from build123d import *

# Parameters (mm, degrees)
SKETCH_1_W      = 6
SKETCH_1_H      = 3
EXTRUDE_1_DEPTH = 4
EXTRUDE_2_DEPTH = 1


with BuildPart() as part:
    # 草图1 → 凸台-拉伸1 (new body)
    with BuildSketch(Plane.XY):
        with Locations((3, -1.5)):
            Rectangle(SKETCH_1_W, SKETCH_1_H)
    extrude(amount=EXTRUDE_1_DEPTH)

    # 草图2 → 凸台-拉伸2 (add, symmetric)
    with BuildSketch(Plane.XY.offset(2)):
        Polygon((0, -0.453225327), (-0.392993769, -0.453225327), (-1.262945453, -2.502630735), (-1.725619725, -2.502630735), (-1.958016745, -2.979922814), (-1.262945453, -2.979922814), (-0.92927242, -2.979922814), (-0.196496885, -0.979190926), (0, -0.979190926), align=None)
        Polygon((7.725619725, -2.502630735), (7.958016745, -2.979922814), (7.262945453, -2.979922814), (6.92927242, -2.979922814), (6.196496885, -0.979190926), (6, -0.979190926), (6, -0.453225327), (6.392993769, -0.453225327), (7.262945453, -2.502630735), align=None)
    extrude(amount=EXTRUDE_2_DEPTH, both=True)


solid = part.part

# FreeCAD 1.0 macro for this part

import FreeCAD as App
import Part
import Sketcher
from FreeCAD import Vector
Q = App.Units.Quantity

doc = App.newDocument("Part")
body = doc.addObject("PartDesign::Body", "Body")

sketch1 = doc.addObject("Sketcher::SketchObject", "Sketch")
body.addObject(sketch1)
sketch1.AttachmentSupport = (doc.XY_Plane, [""])
sketch1.MapMode = "FlatFace"
sketch1.addGeometry([
    Part.LineSegment(Vector(0, 0, 0), Vector(0, -3, 0)),
    Part.LineSegment(Vector(0, -3, 0), Vector(6, -3, 0)),
    Part.LineSegment(Vector(6, -3, 0), Vector(6, 0, 0)),
    Part.LineSegment(Vector(6, 0, 0), Vector(0, 0, 0)),
], False)
sketch1.addConstraint([
    Sketcher.Constraint("Coincident", 0, 2, 1, 1),
    Sketcher.Constraint("Coincident", 1, 2, 2, 1),
    Sketcher.Constraint("Coincident", 2, 2, 3, 1),
    Sketcher.Constraint("Coincident", 3, 2, 0, 1),
    Sketcher.Constraint("Vertical", 0),
    Sketcher.Constraint("Horizontal", 1),
    Sketcher.Constraint("Vertical", 2),
    Sketcher.Constraint("Horizontal", 3),
    Sketcher.Constraint("Coincident", 3, 2, -1, 1),
    Sketcher.Constraint("DistanceX", 1, 1, 1, 2, Q("6 mm")),
    Sketcher.Constraint("DistanceY", 0, 2, 0, 1, Q("3 mm")),
])
pad1 = doc.addObject("PartDesign::Pad", "Pad")
body.addObject(pad1)
pad1.Profile = sketch1
pad1.Length = 4

sketch2 = doc.addObject("Sketcher::SketchObject", "Sketch001")
body.addObject(sketch2)
sketch2.AttachmentSupport = (doc.XY_Plane, [""])
sketch2.MapMode = "FlatFace"
sketch2.AttachmentOffset = App.Placement(Vector(0, 0, 2), App.Rotation())
sketch2.addGeometry([
    Part.LineSegment(Vector(0, -0.45, 0), Vector(-0.39, -0.45, 0)),
    Part.LineSegment(Vector(-0.39, -0.45, 0), Vector(-1.26, -2.5, 0)),
    Part.LineSegment(Vector(-1.26, -2.5, 0), Vector(-1.73, -2.5, 0)),
    Part.LineSegment(Vector(-1.73, -2.5, 0), Vector(-1.96, -2.98, 0)),
    Part.LineSegment(Vector(-1.96, -2.98, 0), Vector(-0.93, -2.98, 0)),
    Part.LineSegment(Vector(-0.93, -2.98, 0), Vector(-0.2, -0.98, 0)),
    Part.LineSegment(Vector(-0.2, -0.98, 0), Vector(0, -0.98, 0)),
    Part.LineSegment(Vector(0, -0.98, 0), Vector(0, -0.45, 0)),
    Part.LineSegment(Vector(7.96, -2.98, 0), Vector(7.73, -2.5, 0)),
    Part.LineSegment(Vector(7.73, -2.5, 0), Vector(7.26, -2.5, 0)),
    Part.LineSegment(Vector(7.26, -2.5, 0), Vector(6.39, -0.45, 0)),
    Part.LineSegment(Vector(6.39, -0.45, 0), Vector(6, -0.45, 0)),
    Part.LineSegment(Vector(6, -0.45, 0), Vector(6, -0.98, 0)),
    Part.LineSegment(Vector(6, -0.98, 0), Vector(6.2, -0.98, 0)),
    Part.LineSegment(Vector(6.2, -0.98, 0), Vector(6.93, -2.98, 0)),
    Part.LineSegment(Vector(6.93, -2.98, 0), Vector(7.96, -2.98, 0)),
], False)
sketch2.addConstraint([
    Sketcher.Constraint("Coincident", 0, 2, 1, 1),
    Sketcher.Constraint("Coincident", 1, 2, 2, 1),
    Sketcher.Constraint("Coincident", 2, 2, 3, 1),
    Sketcher.Constraint("Coincident", 3, 2, 4, 1),
    Sketcher.Constraint("Coincident", 4, 2, 5, 1),
    Sketcher.Constraint("Coincident", 5, 2, 6, 1),
    Sketcher.Constraint("Coincident", 6, 2, 7, 1),
    Sketcher.Constraint("Coincident", 7, 2, 0, 1),
    Sketcher.Constraint("Coincident", 8, 2, 9, 1),
    Sketcher.Constraint("Coincident", 9, 2, 10, 1),
    Sketcher.Constraint("Coincident", 10, 2, 11, 1),
    Sketcher.Constraint("Coincident", 11, 2, 12, 1),
    Sketcher.Constraint("Coincident", 12, 2, 13, 1),
    Sketcher.Constraint("Coincident", 13, 2, 14, 1),
    Sketcher.Constraint("Coincident", 14, 2, 15, 1),
    Sketcher.Constraint("Coincident", 15, 2, 8, 1),
    Sketcher.Constraint("Horizontal", 0),
    Sketcher.Constraint("Horizontal", 2),
    Sketcher.Constraint("Horizontal", 4),
    Sketcher.Constraint("Horizontal", 6),
    Sketcher.Constraint("Vertical", 7),
    Sketcher.Constraint("Horizontal", 9),
    Sketcher.Constraint("Horizontal", 11),
    Sketcher.Constraint("Vertical", 12),
    Sketcher.Constraint("Horizontal", 13),
    Sketcher.Constraint("Horizontal", 15),
    Sketcher.Constraint("PointOnObject", 6, 2, -2),
    Sketcher.Constraint("Horizontal", 2, 2, 8, 2),
    Sketcher.Constraint("Horizontal", 7, 2, 10, 2),
    Sketcher.Constraint("Horizontal", 6, 2, 12, 2),
    Sketcher.Constraint("Horizontal", 4, 2, 14, 2),
    Sketcher.Constraint("Equal", 2, 9),
    Sketcher.Constraint("Equal", 0, 11),
    Sketcher.Constraint("Equal", 6, 13),
    Sketcher.Constraint("Equal", 4, 15),
    Sketcher.Constraint("Equal", 3, 8),
    Sketcher.Constraint("Equal", 1, 10),
    Sketcher.Constraint("DistanceX", -1, 1, 11, 2, Q("6 mm")),
    Sketcher.Constraint("Distance", 5, Q("2.130701 mm")),
    Sketcher.Constraint("DistanceX", 0, 2, 0, 1, Q("0.392994 mm")),
    Sketcher.Constraint("DistanceX", 2, 2, 2, 1, Q("0.462674 mm")),
    Sketcher.Constraint("DistanceX", 4, 1, 4, 2, Q("1.028744 mm")),
    Sketcher.Constraint("DistanceX", 6, 1, 6, 2, Q("0.196497 mm")),
    Sketcher.Constraint("DistanceY", 7, 1, 7, 2, Q("0.525966 mm")),
    Sketcher.Constraint("DistanceY", 1, 2, -1, 1, Q("2.502631 mm")),
    Sketcher.Constraint("DistanceX", 2, 2, -1, 1, Q("1.72562 mm")),
    Sketcher.Constraint("DistanceY", 5, 2, -1, 1, Q("0.979191 mm")),
    Sketcher.Constraint("DistanceX", 3, 2, 1, 2, Q("0.695071 mm")),
])
pad2 = doc.addObject("PartDesign::Pad", "Pad001")
body.addObject(pad2)
pad2.Profile = sketch2
pad2.Length = 2
pad2.Midplane = True

doc.recompute()
